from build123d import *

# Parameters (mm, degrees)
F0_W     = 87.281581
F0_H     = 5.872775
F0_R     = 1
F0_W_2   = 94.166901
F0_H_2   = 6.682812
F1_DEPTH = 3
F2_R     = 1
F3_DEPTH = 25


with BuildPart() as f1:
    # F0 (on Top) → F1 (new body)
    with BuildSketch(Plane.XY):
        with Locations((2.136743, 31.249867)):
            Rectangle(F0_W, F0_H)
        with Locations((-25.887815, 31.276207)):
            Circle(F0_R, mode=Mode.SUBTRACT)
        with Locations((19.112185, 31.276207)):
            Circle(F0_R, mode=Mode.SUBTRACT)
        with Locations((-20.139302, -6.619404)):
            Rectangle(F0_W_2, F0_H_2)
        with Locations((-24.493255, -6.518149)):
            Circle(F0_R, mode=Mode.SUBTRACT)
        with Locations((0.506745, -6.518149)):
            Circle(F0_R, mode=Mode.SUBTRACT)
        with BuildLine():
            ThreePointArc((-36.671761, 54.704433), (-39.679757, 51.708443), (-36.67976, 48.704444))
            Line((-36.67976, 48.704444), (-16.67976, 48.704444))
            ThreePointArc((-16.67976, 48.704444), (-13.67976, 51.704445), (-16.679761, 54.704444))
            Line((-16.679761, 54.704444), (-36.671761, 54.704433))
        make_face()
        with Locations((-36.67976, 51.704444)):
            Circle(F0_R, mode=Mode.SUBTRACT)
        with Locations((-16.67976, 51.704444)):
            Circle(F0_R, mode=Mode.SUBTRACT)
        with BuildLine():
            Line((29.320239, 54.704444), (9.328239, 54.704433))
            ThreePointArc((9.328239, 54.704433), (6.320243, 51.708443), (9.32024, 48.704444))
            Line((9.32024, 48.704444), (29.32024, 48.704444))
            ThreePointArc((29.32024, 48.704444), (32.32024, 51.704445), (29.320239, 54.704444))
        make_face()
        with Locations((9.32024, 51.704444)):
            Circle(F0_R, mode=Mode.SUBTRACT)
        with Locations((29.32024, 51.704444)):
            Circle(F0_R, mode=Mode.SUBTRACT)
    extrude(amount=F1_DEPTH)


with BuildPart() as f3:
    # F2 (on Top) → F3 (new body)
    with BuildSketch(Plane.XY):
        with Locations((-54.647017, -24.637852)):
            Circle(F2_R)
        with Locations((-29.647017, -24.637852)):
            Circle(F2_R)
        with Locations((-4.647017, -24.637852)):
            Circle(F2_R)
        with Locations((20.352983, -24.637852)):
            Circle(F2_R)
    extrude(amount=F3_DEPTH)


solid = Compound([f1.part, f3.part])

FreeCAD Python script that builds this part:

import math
import FreeCAD as App
import Part
import Sketcher
Q = App.Units.Quantity

doc = App.newDocument("Part")
body = doc.addObject("PartDesign::Body", "Body")
body.AllowCompound = True

sketch1 = body.newObject("Sketcher::SketchObject", "Sketch")
sketch1.AttachmentSupport = (doc.getObject("XY_Plane"), [""])
sketch1.MapMode = "FlatFace"
sketch1.addGeometry(Part.LineSegment(App.Vector(-41.504047, 34.186254, 0), App.Vector(-41.504047, 28.313479, 0)), False)
sketch1.addGeometry(Part.LineSegment(App.Vector(-41.504047, 28.313479, 0), App.Vector(45.777533, 28.313479, 0)), False)
sketch1.addGeometry(Part.LineSegment(App.Vector(45.777533, 28.313479, 0), App.Vector(45.777533, 34.186254, 0)), False)
sketch1.addGeometry(Part.LineSegment(App.Vector(45.777533, 34.186254, 0), App.Vector(-41.504047, 34.186254, 0)), False)
sketch1.addGeometry(Part.Circle(App.Vector(-25.887815, 31.276207, 0), App.Vector(0, 0, 1), 1), False)
sketch1.addGeometry(Part.Circle(App.Vector(19.112185, 31.276207, 0), App.Vector(0, 0, 1), 1), False)
sketch1.addGeometry(Part.LineSegment(App.Vector(-67.222752, -3.277998, 0), App.Vector(-67.222752, -9.96081, 0)), False)
sketch1.addGeometry(Part.LineSegment(App.Vector(-67.222752, -9.96081, 0), App.Vector(26.944149, -9.96081, 0)), False)
sketch1.addGeometry(Part.LineSegment(App.Vector(26.944149, -9.96081, 0), App.Vector(26.944149, -3.277998, 0)), False)
sketch1.addGeometry(Part.LineSegment(App.Vector(26.944149, -3.277998, 0), App.Vector(-67.222752, -3.277998, 0)), False)
sketch1.addGeometry(Part.Circle(App.Vector(-24.493255, -6.518149, 0), App.Vector(0, 0, 1), 1), False)
sketch1.addGeometry(Part.Circle(App.Vector(0.506745, -6.518149, 0), App.Vector(0, 0, 1), 1), False)
sketch1.addGeometry(Part.ArcOfCircle(Part.Circle(App.Vector(-36.67976, 51.704444, 0), App.Vector(0, 0, 1), 3), math.radians(89.847233), math.radians(269.999997)), False)
sketch1.addGeometry(Part.LineSegment(App.Vector(-36.67976, 48.704444, 0), App.Vector(-16.67976, 48.704444, 0)), False)
sketch1.addGeometry(Part.ArcOfCircle(Part.Circle(App.Vector(-16.67976, 51.704444, 0), App.Vector(0, 0, 1), 3), math.radians(-90), math.radians(90.000019)), False)
sketch1.addGeometry(Part.LineSegment(App.Vector(-16.679761, 54.704444, 0), App.Vector(-36.671761, 54.704433, 0)), False)
sketch1.addGeometry(Part.Circle(App.Vector(-36.67976, 51.704444, 0), App.Vector(0, 0, 1), 1), False)
sketch1.addGeometry(Part.Circle(App.Vector(-16.67976, 51.704444, 0), App.Vector(0, 0, 1), 1), False)
sketch1.addGeometry(Part.LineSegment(App.Vector(29.320239, 54.704444, 0), App.Vector(9.328239, 54.704433, 0)), False)
sketch1.addGeometry(Part.ArcOfCircle(Part.Circle(App.Vector(9.32024, 51.704444, 0), App.Vector(0, 0, 1), 3), math.radians(89.847233), math.radians(269.999997)), False)
sketch1.addGeometry(Part.LineSegment(App.Vector(9.32024, 48.704444, 0), App.Vector(29.32024, 48.704444, 0)), False)
sketch1.addGeometry(Part.ArcOfCircle(Part.Circle(App.Vector(29.32024, 51.704444, 0), App.Vector(0, 0, 1), 3), math.radians(-90), math.radians(90.000019)), False)
sketch1.addGeometry(Part.Circle(App.Vector(9.32024, 51.704444, 0), App.Vector(0, 0, 1), 1), False)
sketch1.addGeometry(Part.Circle(App.Vector(29.32024, 51.704444, 0), App.Vector(0, 0, 1), 1), False)
sketch1.addConstraint(Sketcher.Constraint("Coincident", 0, 2, 1, 1))
sketch1.addConstraint(Sketcher.Constraint("Coincident", 1, 2, 2, 1))
sketch1.addConstraint(Sketcher.Constraint("Coincident", 2, 2, 3, 1))
sketch1.addConstraint(Sketcher.Constraint("Coincident", 3, 2, 0, 1))
sketch1.addConstraint(Sketcher.Constraint("Coincident", 6, 2, 7, 1))
sketch1.addConstraint(Sketcher.Constraint("Coincident", 7, 2, 8, 1))
sketch1.addConstraint(Sketcher.Constraint("Coincident", 8, 2, 9, 1))
sketch1.addConstraint(Sketcher.Constraint("Coincident", 9, 2, 6, 1))
sketch1.addConstraint(Sketcher.Constraint("Tangent", 12, 2, 13, 1))
sketch1.addConstraint(Sketcher.Constraint("Tangent", 13, 2, 14, 1))
sketch1.addConstraint(Sketcher.Constraint("Tangent", 14, 2, 15, 1))
sketch1.addConstraint(Sketcher.Constraint("Coincident", 15, 2, 12, 1))
sketch1.addConstraint(Sketcher.Constraint("Coincident", 18, 2, 19, 1))
sketch1.addConstraint(Sketcher.Constraint("Tangent", 19, 2, 20, 1))
sketch1.addConstraint(Sketcher.Constraint("Tangent", 20, 2, 21, 1))
sketch1.addConstraint(Sketcher.Constraint("Tangent", 21, 2, 18, 1))
sketch1.addConstraint(Sketcher.Constraint("Vertical", 0))
sketch1.addConstraint(Sketcher.Constraint("Horizontal", 1))
sketch1.addConstraint(Sketcher.Constraint("Vertical", 2))
sketch1.addConstraint(Sketcher.Constraint("Horizontal", 3))
sketch1.addConstraint(Sketcher.Constraint("Vertical", 6))
sketch1.addConstraint(Sketcher.Constraint("Horizontal", 7))
sketch1.addConstraint(Sketcher.Constraint("Vertical", 8))
sketch1.addConstraint(Sketcher.Constraint("Horizontal", 9))
sketch1.addConstraint(Sketcher.Constraint("Horizontal", 13))
sketch1.addConstraint(Sketcher.Constraint("Horizontal", 20))
sketch1.addConstraint(Sketcher.Constraint("Coincident", 16, 3, 12, 3))
sketch1.addConstraint(Sketcher.Constraint("Coincident", 17, 3, 14, 3))
sketch1.addConstraint(Sketcher.Constraint("Coincident", 22, 3, 19, 3))
sketch1.addConstraint(Sketcher.Constraint("Coincident", 23, 3, 21, 3))
sketch1.addConstraint(Sketcher.Constraint("Equal", 4, 5))
sketch1.addConstraint(Sketcher.Constraint("Equal", 5, 10))
sketch1.addConstraint(Sketcher.Constraint("Equal", 10, 11))
sketch1.addConstraint(Sketcher.Constraint("Equal", 12, 14))
sketch1.addConstraint(Sketcher.Constraint("Equal", 11, 16))
sketch1.addConstraint(Sketcher.Constraint("Equal", 16, 17))
sketch1.addConstraint(Sketcher.Constraint("Equal", 14, 19))
sketch1.addConstraint(Sketcher.Constraint("Equal", 19, 21))
sketch1.addConstraint(Sketcher.Constraint("Equal", 17, 22))
sketch1.addConstraint(Sketcher.Constraint("Equal", 22, 23))
sketch1.addConstraint(Sketcher.Constraint("Parallel", 15, 18))
sketch1.addConstraint(Sketcher.Constraint("Horizontal", 4, 3, 5, 3))
sketch1.addConstraint(Sketcher.Constraint("Horizontal", 10, 3, 11, 3))
sketch1.addConstraint(Sketcher.Constraint("Horizontal", 17, 3, 19, 3))
sketch1.addConstraint(Sketcher.Constraint("Equal", 13, 20))
sketch1.addConstraint(Sketcher.Constraint("Diameter", 4, Q("2 mm")))
sketch1.addConstraint(Sketcher.Constraint("Radius", 12, Q("3 mm")))
sketch1.addConstraint(Sketcher.Constraint("DistanceX", 13, 1, 13, 2, Q("20 mm")))
sketch1.addConstraint(Sketcher.Constraint("DistanceX", 4, 3, 5, 3, Q("45 mm")))
sketch1.addConstraint(Sketcher.Constraint("DistanceX", 10, 3, 11, 3, Q("25 mm")))
sketch1.addConstraint(Sketcher.Constraint("DistanceX", 14, 3, 19, 3, Q("26 mm")))
sketch1.addConstraint(Sketcher.Constraint("Distance", 15, Q("19.992 mm")))
sketch1.addConstraint(Sketcher.Constraint("DistanceX", 7, 1, 7, 2, Q("94.166901 mm")))
sketch1.addConstraint(Sketcher.Constraint("DistanceY", 8, 2, -1, 1, Q("3.277998 mm")))
sketch1.addConstraint(Sketcher.Constraint("DistanceX", 1, 1, 1, 2, Q("87.281581 mm")))
sketch1.addConstraint(Sketcher.Constraint("DistanceY", 0, 2, 0, 1, Q("5.872775 mm")))
sketch1.addConstraint(Sketcher.Constraint("DistanceY", 6, 2, 6, 1, Q("6.682812 mm")))
sketch1.addConstraint(Sketcher.Constraint("DistanceY", 10, 3, -1, 1, Q("6.518149 mm")))
sketch1.addConstraint(Sketcher.Constraint("DistanceX", 12, 3, -1, 1, Q("36.67976 mm")))
sketch1.addConstraint(Sketcher.Constraint("DistanceY", -1, 1, 0, 2, Q("28.313479 mm")))
sketch1.addConstraint(Sketcher.Constraint("DistanceX", -1, 1, 7, 2, Q("26.944149 mm")))
sketch1.addConstraint(Sketcher.Constraint("DistanceX", 4, 3, 10, 3, Q("1.39456 mm")))
sketch1.addConstraint(Sketcher.Constraint("DistanceX", 5, 3, 1, 2, Q("26.665348 mm")))
sketch1.addConstraint(Sketcher.Constraint("DistanceY", 2, 2, 21, 3, Q("17.51819 mm")))
sketch1.addConstraint(Sketcher.Constraint("DistanceX", 4, 3, -1, 1, Q("25.887815 mm")))
sketch1.addConstraint(Sketcher.Constraint("DistanceY", -1, 1, 4, 3, Q("31.276207 mm")))
pad1 = body.newObject("PartDesign::Pad", "Pad")
pad1.Profile = sketch1
pad1.Length = 3
body2 = doc.addObject("PartDesign::Body", "Body001")
body2.AllowCompound = True

sketch2 = body2.newObject("Sketcher::SketchObject", "Sketch001")
sketch2.AttachmentSupport = (doc.getObject("XY_Plane001"), [""])
sketch2.MapMode = "FlatFace"
sketch2.addGeometry(Part.Circle(App.Vector(-54.6, -24.6, 0), App.Vector(0, 0, 1), 1), False)
sketch2.addGeometry(Part.Circle(App.Vector(-29.6, -24.6, 0), App.Vector(0, 0, 1), 1), False)
sketch2.addGeometry(Part.Circle(App.Vector(-4.6, -24.6, 0), App.Vector(0, 0, 1), 1), False)
sketch2.addGeometry(Part.Circle(App.Vector(20.4, -24.6, 0), App.Vector(0, 0, 1), 1), False)
sketch2.addConstraint(Sketcher.Constraint("Equal", 0, 1))
sketch2.addConstraint(Sketcher.Constraint("Equal", 1, 2))
sketch2.addConstraint(Sketcher.Constraint("Equal", 2, 3))
sketch2.addConstraint(Sketcher.Constraint("Horizontal", 0, 3, 1, 3))
sketch2.addConstraint(Sketcher.Constraint("Horizontal", 1, 3, 2, 3))
sketch2.addConstraint(Sketcher.Constraint("Horizontal", 2, 3, 3, 3))
sketch2.addConstraint(Sketcher.Constraint("Diameter", 0, Q("2 mm")))
sketch2.addConstraint(Sketcher.Constraint("DistanceX", 0, 3, 1, 3, Q("25 mm")))
sketch2.addConstraint(Sketcher.Constraint("DistanceX", 1, 3, 2, 3, Q("25 mm")))
sketch2.addConstraint(Sketcher.Constraint("DistanceX", 2, 3, 3, 3, Q("25 mm")))
sketch2.addConstraint(Sketcher.Constraint("DistanceY", 0, 3, -1, 1, Q("24.637852 mm")))
sketch2.addConstraint(Sketcher.Constraint("DistanceX", 0, 3, -1, 1, Q("54.647017 mm")))
pad2 = body2.newObject("PartDesign::Pad", "Pad001")
pad2.Profile = sketch2
pad2.Length = 25

doc.recompute()
